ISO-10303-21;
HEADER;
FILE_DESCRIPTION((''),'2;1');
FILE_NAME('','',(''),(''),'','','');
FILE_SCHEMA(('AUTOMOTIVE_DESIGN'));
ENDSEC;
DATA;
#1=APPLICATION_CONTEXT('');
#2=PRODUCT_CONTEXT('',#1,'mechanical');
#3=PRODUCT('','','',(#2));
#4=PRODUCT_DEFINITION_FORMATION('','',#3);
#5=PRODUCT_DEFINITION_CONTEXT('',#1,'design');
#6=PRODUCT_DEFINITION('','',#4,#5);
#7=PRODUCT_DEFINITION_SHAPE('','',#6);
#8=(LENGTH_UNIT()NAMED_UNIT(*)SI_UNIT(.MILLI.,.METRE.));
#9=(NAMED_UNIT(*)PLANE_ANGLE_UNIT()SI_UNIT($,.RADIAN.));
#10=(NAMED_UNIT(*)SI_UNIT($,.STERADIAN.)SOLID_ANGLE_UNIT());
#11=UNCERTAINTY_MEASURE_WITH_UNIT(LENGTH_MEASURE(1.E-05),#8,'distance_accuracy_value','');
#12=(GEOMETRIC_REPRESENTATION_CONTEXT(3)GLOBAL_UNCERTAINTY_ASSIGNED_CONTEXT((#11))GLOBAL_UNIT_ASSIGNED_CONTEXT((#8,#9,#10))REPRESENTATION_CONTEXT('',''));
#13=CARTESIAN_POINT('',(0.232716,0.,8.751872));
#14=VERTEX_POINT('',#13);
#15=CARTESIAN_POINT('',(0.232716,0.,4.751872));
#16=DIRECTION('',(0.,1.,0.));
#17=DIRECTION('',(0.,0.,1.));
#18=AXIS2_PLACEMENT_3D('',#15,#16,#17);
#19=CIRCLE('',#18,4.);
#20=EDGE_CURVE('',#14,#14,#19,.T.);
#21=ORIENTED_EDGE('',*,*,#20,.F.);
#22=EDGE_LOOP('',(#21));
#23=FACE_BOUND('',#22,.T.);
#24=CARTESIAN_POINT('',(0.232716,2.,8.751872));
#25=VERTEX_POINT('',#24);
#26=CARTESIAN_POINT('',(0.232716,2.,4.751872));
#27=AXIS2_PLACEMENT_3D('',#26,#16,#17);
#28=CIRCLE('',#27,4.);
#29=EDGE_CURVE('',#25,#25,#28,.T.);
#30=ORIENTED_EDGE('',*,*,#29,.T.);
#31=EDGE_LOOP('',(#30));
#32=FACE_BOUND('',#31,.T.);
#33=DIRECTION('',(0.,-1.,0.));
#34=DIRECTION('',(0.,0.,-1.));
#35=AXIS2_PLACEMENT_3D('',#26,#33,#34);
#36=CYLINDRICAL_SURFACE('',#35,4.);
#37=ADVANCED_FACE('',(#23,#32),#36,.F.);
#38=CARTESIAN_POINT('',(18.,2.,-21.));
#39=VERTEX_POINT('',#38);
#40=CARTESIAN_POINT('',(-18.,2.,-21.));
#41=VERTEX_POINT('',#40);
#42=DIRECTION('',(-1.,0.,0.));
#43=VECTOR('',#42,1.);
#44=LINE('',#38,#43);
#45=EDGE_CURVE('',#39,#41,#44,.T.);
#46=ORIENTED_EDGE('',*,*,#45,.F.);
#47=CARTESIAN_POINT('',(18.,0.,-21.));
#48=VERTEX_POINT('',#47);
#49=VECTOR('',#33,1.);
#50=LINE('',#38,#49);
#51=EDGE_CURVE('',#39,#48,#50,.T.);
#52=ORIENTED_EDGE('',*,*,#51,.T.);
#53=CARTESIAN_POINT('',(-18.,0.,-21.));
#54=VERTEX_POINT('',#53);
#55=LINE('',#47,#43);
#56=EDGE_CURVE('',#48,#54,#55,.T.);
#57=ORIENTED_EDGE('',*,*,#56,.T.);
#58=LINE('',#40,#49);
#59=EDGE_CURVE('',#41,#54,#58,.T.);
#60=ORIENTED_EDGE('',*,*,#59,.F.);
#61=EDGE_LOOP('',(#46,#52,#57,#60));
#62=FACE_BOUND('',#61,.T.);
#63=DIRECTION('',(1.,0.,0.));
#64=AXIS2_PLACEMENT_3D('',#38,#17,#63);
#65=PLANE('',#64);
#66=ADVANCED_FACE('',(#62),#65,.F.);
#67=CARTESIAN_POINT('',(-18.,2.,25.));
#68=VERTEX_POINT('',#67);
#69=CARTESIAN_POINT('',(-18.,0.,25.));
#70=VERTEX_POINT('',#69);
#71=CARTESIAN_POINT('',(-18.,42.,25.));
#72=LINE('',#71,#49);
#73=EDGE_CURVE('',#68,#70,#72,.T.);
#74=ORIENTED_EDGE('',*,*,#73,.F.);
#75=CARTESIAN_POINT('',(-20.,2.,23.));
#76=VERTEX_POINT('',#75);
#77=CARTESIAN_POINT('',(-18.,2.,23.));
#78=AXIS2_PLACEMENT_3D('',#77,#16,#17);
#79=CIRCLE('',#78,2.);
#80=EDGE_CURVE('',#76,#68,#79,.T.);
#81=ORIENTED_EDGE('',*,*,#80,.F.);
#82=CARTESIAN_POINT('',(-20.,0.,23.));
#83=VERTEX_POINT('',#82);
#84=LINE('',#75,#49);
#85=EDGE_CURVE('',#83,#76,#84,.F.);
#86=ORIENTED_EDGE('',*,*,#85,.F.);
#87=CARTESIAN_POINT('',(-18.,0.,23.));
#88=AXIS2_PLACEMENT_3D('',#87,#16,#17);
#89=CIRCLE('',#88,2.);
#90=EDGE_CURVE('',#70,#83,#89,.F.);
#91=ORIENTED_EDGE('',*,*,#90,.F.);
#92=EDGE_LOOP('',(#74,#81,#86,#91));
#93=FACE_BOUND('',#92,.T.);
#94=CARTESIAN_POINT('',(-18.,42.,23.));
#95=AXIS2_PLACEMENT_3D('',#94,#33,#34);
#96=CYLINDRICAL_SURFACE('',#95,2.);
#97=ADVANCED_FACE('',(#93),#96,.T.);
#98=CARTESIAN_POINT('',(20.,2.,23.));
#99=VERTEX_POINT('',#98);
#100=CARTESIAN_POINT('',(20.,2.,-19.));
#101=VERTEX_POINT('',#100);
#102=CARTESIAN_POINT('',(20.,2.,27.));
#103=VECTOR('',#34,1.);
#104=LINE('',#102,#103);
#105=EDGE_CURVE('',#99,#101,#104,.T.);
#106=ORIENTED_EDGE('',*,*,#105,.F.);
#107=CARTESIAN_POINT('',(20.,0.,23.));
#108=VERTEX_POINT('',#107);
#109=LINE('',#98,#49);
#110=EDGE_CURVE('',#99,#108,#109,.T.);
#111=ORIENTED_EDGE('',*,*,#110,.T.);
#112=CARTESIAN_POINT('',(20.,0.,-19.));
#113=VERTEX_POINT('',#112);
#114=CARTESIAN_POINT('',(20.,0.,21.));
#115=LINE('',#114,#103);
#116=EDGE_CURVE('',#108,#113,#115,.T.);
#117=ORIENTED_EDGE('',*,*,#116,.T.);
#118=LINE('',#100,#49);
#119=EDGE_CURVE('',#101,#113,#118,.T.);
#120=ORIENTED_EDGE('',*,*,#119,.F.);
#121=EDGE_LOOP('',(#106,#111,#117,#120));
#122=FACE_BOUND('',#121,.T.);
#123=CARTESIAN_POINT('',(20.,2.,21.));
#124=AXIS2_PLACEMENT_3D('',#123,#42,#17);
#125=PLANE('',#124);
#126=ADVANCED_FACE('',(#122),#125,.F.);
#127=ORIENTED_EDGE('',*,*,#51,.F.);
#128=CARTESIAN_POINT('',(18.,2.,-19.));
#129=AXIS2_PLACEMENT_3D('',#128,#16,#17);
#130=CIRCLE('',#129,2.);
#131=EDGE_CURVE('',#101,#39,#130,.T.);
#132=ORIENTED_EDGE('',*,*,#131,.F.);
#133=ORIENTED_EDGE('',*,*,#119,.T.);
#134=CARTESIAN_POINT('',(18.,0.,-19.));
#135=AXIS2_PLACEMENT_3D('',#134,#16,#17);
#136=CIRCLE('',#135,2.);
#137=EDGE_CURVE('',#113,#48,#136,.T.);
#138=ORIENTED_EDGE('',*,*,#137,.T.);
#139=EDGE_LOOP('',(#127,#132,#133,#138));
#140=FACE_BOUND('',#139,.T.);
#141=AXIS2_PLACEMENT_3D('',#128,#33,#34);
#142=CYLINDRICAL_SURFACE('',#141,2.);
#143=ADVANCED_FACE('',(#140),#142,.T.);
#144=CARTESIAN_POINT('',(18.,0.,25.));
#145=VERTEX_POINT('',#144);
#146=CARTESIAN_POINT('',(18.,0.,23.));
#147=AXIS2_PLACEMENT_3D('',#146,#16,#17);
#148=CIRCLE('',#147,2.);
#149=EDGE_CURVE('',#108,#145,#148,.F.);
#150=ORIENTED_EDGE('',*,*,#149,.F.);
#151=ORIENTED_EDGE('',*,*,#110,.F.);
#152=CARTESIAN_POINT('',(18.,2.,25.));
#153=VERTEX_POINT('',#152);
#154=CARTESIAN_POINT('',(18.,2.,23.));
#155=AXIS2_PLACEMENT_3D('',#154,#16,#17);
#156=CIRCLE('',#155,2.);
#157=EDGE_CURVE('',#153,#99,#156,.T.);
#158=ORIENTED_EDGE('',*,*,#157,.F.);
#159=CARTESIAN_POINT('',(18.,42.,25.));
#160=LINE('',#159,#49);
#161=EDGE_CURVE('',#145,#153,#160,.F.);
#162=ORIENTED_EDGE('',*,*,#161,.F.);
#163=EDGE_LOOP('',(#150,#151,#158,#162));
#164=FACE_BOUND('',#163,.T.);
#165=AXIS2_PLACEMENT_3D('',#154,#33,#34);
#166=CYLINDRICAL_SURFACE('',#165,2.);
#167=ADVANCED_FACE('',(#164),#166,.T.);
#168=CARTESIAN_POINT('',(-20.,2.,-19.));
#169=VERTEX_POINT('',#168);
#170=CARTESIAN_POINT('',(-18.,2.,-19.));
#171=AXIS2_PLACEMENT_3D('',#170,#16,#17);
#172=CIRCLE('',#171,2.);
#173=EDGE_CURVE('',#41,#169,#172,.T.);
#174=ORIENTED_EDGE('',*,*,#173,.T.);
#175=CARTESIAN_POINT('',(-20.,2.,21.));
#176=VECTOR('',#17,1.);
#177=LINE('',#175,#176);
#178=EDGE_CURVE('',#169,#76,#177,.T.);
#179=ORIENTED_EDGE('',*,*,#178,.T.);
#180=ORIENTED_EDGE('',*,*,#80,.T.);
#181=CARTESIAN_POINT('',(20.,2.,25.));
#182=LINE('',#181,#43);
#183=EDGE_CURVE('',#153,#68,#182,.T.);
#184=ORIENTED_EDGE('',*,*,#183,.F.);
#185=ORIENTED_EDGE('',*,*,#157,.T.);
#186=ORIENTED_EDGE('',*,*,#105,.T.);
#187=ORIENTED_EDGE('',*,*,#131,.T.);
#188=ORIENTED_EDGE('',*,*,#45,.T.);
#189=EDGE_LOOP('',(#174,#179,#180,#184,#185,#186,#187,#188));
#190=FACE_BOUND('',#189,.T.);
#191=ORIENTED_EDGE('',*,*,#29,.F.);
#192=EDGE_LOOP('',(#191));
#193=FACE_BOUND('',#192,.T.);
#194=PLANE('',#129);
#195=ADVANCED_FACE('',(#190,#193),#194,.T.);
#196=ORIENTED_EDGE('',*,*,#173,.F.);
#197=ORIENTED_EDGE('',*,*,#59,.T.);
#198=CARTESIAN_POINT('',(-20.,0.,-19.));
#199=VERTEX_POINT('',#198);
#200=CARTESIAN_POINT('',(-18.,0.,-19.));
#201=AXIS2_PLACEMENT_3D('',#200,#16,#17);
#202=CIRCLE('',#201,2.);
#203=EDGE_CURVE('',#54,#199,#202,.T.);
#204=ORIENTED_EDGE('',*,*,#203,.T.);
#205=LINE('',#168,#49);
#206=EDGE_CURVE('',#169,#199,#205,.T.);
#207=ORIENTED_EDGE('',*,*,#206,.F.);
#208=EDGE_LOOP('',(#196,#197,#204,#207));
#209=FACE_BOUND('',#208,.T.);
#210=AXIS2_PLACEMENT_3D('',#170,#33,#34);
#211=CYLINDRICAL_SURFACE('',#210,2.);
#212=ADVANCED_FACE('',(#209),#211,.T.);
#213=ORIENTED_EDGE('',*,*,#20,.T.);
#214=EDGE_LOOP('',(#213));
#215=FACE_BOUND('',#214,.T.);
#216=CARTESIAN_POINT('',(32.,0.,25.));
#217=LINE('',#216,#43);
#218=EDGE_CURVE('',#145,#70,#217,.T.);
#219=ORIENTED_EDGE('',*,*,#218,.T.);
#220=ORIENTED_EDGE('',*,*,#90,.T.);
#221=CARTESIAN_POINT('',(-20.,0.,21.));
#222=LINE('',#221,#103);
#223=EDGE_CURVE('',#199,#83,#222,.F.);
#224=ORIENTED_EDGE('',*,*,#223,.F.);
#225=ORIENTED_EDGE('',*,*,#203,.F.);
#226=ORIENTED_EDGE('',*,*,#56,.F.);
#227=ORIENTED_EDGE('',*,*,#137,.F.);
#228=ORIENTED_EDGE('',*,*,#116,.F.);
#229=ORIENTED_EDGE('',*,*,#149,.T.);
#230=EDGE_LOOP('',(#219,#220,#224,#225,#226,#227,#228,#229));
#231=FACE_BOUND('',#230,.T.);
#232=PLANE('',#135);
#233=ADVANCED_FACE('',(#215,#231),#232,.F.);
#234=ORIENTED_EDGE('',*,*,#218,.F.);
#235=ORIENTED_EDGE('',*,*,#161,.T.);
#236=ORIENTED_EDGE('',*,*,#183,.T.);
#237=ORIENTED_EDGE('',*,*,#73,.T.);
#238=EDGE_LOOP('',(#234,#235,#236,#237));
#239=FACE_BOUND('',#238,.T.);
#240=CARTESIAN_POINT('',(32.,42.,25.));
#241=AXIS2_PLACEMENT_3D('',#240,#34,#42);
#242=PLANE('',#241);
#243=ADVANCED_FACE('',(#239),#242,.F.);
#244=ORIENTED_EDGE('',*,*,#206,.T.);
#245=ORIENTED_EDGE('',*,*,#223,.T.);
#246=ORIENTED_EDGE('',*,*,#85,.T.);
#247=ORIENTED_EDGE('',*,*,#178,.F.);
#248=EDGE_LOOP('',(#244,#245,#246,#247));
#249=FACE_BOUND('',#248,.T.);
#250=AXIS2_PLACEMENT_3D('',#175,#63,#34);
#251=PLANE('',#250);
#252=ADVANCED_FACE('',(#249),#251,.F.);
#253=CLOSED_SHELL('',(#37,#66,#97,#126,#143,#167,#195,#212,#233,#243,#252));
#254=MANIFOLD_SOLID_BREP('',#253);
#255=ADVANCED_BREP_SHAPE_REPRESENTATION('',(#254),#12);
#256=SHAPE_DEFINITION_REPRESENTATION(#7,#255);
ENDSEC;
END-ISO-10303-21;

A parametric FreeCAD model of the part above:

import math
import FreeCAD as App
import Part
import Sketcher
from FreeCAD import Vector


def edges_at(feature, points):
    """Names of the edges that pass closest to the given points."""
    edges = feature.Shape.Edges
    near = lambda p: min(range(len(edges)), key=lambda i: edges[i].distToShape(Part.Vertex(*p))[0])
    return sorted({f"Edge{near(p) + 1}" for p in points})

doc = App.newDocument("Part")
params = doc.addObject("Spreadsheet::Sheet", "Params")
for row, (alias, value) in enumerate([
    ("sketch1_diameter", "8 mm"),
    ("sketch1_radius", "2 mm"),
    ("sketch1_width", "40 mm"),
    ("sketch1_height", "46 mm"),
    ("pad1_length", "2 mm"),
    ("sketch2_width", "40 mm"),
    ("sketch2_height", "2 mm"),
    ("pad2_length", "40 mm"),
    ("sketch3_width", "42 mm"),
    ("sketch3_height", "2 mm"),
    ("fillet_radius", "2 mm"),
    ("fillet2_radius", "2 mm"),
], start=1):
    params.set(f"A{row}", alias)
    params.set(f"B{row}", "=" + value)
    params.setAlias(f"B{row}", alias)

body = doc.addObject("PartDesign::Body", "Body")

# Sketch on XZ plane
sketch1 = doc.addObject("Sketcher::SketchObject", "Sketch")
body.addObject(sketch1)
sketch1.AttachmentSupport = (doc.XZ_Plane, [""])
sketch1.MapMode = "FlatFace"
sketch1.addGeometry([
    Part.LineSegment(Vector(-20, 27, 0), Vector(20, 27, 0)),  # 0
    Part.LineSegment(Vector(20, 27, 0), Vector(20, -19, 0)),  # 1
    Part.ArcOfCircle(Part.Circle(Vector(18, -19, 0), Vector(0, 0, 1), 2), math.radians(-90), math.radians(0)),  # 2
    Part.LineSegment(Vector(18, -21, 0), Vector(-18, -21, 0)),  # 3
    Part.ArcOfCircle(Part.Circle(Vector(-18, -19, 0), Vector(0, 0, 1), 2), math.radians(-180), math.radians(-90)),  # 4
    Part.LineSegment(Vector(-20, -19, 0), Vector(-20, 27, 0)),  # 5
    Part.Circle(Vector(0.232716, 4.751872, 0), Vector(0, 0, 1), 4),  # 6
], False)
sketch1.addConstraint([
    Sketcher.Constraint("Coincident", 0, 2, 1, 1),
    Sketcher.Constraint("Tangent", 1, 2, 2, 2),
    Sketcher.Constraint("Tangent", 2, 1, 3, 1),
    Sketcher.Constraint("Tangent", 3, 2, 4, 2),
    Sketcher.Constraint("Tangent", 4, 1, 5, 1),
    Sketcher.Constraint("Coincident", 5, 2, 0, 1),
    Sketcher.Constraint("Horizontal", 0),
    Sketcher.Constraint("Vertical", 1),
    Sketcher.Constraint("Horizontal", 3),
    Sketcher.Constraint("Vertical", 5),
    Sketcher.Constraint("Equal", 2, 4),
    Sketcher.Constraint("Diameter", 6, 8.0),
    Sketcher.Constraint("Radius", 2, 2.0),
    Sketcher.Constraint("DistanceX", 0, 1, 0, 2, 40.0),
    Sketcher.Constraint("DistanceY", 1, 2, 1, 1, 46.0),
    Sketcher.Constraint("DistanceX", -1, 1, 2, 3, 18.0),
    Sketcher.Constraint("DistanceY", 2, 3, -1, 1, 19.0),
    Sketcher.Constraint("DistanceY", -1, 1, 6, 3, 4.751872),
    Sketcher.Constraint("DistanceX", -1, 1, 6, 3, 0.232716),
])
sketch1.setExpression("Constraints[11]", "Params.sketch1_diameter")
sketch1.setExpression("Constraints[12]", "Params.sketch1_radius")
sketch1.setExpression("Constraints[13]", "Params.sketch1_width")
sketch1.setExpression("Constraints[14]", "Params.sketch1_height")
pad1 = doc.addObject("PartDesign::Pad", "Pad")
body.addObject(pad1)
pad1.Profile = sketch1
pad1.setExpression("Length", "Params.pad1_length")
pad1.Reversed = True

# Sketch on XZ plane
sketch2 = doc.addObject("Sketcher::SketchObject", "Sketch001")
body.addObject(sketch2)
sketch2.AttachmentSupport = (doc.XZ_Plane, [""])
sketch2.MapMode = "FlatFace"
sketch2.AttachmentOffset = App.Placement(Vector(0, 0, -2), App.Rotation())
sketch2.addGeometry([
    Part.LineSegment(Vector(-20, 25, 0), Vector(-20, 27, 0)),
    Part.LineSegment(Vector(-20, 27, 0), Vector(20, 27, 0)),
    Part.LineSegment(Vector(20, 27, 0), Vector(20, 25, 0)),
    Part.LineSegment(Vector(20, 25, 0), Vector(-20, 25, 0)),
], False)
sketch2.addConstraint([
    Sketcher.Constraint("Coincident", 0, 2, 1, 1),
    Sketcher.Constraint("Coincident", 1, 2, 2, 1),
    Sketcher.Constraint("Coincident", 2, 2, 3, 1),
    Sketcher.Constraint("Coincident", 3, 2, 0, 1),
    Sketcher.Constraint("Vertical", 0),
    Sketcher.Constraint("Horizontal", 1),
    Sketcher.Constraint("Vertical", 2),
    Sketcher.Constraint("Horizontal", 3),
    Sketcher.Constraint("DistanceX", 1, 1, 1, 2, 40.0),
    Sketcher.Constraint("DistanceY", 0, 1, 0, 2, 2.0),
    Sketcher.Constraint("DistanceX", 0, 2, -1, 1, 20.0),
    Sketcher.Constraint("DistanceY", -1, 1, 0, 2, 27.0),
])
sketch2.setExpression("Constraints[8]", "Params.sketch2_width")
sketch2.setExpression("Constraints[9]", "Params.sketch2_height")
pad2 = doc.addObject("PartDesign::Pad", "Pad001")
body.addObject(pad2)
pad2.Profile = sketch2
pad2.setExpression("Length", "Params.pad2_length")
pad2.Reversed = True

# Sketch on YZ plane
sketch3 = doc.addObject("Sketcher::SketchObject", "Sketch002")
body.addObject(sketch3)
sketch3.AttachmentSupport = (doc.YZ_Plane, [""])
sketch3.MapMode = "FlatFace"
sketch3.AttachmentOffset = App.Placement(Vector(0, 0, -20), App.Rotation())
sketch3.addGeometry([
    Part.LineSegment(Vector(42, 25, 0), Vector(0, 25, 0)),
    Part.LineSegment(Vector(0, 25, 0), Vector(0, 27, 0)),
    Part.LineSegment(Vector(0, 27, 0), Vector(42, 27, 0)),
    Part.LineSegment(Vector(42, 27, 0), Vector(42, 25, 0)),
], False)
sketch3.addConstraint([
    Sketcher.Constraint("Coincident", 0, 2, 1, 1),
    Sketcher.Constraint("Coincident", 1, 2, 2, 1),
    Sketcher.Constraint("Coincident", 2, 2, 3, 1),
    Sketcher.Constraint("Coincident", 3, 2, 0, 1),
    Sketcher.Constraint("Horizontal", 0),
    Sketcher.Constraint("Vertical", 1),
    Sketcher.Constraint("Horizontal", 2),
    Sketcher.Constraint("Vertical", 3),
    Sketcher.Constraint("PointOnObject", 0, 2, -2),
    Sketcher.Constraint("DistanceX", 0, 2, 0, 1, 42.0),
    Sketcher.Constraint("DistanceY", 1, 1, 1, 2, 2.0),
    Sketcher.Constraint("DistanceY", -1, 1, 0, 2, 25.0),
])
sketch3.setExpression("Constraints[9]", "Params.sketch3_width")
sketch3.setExpression("Constraints[10]", "Params.sketch3_height")
pocket1 = doc.addObject("PartDesign::Pocket", "Pocket")
body.addObject(pocket1)
pocket1.Profile = sketch3
pocket1.Type = "ThroughAll"
pocket1.Midplane = True
doc.recompute()

fillet = doc.addObject("PartDesign::Fillet", "Fillet")
body.addObject(fillet)
fillet.Base = (pocket1, edges_at(pocket1, [(-20, 1, 25)]))
fillet.setExpression("Radius", "Params.fillet_radius")
doc.recompute()

fillet2 = doc.addObject("PartDesign::Fillet", "Fillet001")
body.addObject(fillet2)
fillet2.Base = (fillet, edges_at(fillet, [(20, 1, 25)]))
fillet2.setExpression("Radius", "Params.fillet2_radius")

doc.recompute()
